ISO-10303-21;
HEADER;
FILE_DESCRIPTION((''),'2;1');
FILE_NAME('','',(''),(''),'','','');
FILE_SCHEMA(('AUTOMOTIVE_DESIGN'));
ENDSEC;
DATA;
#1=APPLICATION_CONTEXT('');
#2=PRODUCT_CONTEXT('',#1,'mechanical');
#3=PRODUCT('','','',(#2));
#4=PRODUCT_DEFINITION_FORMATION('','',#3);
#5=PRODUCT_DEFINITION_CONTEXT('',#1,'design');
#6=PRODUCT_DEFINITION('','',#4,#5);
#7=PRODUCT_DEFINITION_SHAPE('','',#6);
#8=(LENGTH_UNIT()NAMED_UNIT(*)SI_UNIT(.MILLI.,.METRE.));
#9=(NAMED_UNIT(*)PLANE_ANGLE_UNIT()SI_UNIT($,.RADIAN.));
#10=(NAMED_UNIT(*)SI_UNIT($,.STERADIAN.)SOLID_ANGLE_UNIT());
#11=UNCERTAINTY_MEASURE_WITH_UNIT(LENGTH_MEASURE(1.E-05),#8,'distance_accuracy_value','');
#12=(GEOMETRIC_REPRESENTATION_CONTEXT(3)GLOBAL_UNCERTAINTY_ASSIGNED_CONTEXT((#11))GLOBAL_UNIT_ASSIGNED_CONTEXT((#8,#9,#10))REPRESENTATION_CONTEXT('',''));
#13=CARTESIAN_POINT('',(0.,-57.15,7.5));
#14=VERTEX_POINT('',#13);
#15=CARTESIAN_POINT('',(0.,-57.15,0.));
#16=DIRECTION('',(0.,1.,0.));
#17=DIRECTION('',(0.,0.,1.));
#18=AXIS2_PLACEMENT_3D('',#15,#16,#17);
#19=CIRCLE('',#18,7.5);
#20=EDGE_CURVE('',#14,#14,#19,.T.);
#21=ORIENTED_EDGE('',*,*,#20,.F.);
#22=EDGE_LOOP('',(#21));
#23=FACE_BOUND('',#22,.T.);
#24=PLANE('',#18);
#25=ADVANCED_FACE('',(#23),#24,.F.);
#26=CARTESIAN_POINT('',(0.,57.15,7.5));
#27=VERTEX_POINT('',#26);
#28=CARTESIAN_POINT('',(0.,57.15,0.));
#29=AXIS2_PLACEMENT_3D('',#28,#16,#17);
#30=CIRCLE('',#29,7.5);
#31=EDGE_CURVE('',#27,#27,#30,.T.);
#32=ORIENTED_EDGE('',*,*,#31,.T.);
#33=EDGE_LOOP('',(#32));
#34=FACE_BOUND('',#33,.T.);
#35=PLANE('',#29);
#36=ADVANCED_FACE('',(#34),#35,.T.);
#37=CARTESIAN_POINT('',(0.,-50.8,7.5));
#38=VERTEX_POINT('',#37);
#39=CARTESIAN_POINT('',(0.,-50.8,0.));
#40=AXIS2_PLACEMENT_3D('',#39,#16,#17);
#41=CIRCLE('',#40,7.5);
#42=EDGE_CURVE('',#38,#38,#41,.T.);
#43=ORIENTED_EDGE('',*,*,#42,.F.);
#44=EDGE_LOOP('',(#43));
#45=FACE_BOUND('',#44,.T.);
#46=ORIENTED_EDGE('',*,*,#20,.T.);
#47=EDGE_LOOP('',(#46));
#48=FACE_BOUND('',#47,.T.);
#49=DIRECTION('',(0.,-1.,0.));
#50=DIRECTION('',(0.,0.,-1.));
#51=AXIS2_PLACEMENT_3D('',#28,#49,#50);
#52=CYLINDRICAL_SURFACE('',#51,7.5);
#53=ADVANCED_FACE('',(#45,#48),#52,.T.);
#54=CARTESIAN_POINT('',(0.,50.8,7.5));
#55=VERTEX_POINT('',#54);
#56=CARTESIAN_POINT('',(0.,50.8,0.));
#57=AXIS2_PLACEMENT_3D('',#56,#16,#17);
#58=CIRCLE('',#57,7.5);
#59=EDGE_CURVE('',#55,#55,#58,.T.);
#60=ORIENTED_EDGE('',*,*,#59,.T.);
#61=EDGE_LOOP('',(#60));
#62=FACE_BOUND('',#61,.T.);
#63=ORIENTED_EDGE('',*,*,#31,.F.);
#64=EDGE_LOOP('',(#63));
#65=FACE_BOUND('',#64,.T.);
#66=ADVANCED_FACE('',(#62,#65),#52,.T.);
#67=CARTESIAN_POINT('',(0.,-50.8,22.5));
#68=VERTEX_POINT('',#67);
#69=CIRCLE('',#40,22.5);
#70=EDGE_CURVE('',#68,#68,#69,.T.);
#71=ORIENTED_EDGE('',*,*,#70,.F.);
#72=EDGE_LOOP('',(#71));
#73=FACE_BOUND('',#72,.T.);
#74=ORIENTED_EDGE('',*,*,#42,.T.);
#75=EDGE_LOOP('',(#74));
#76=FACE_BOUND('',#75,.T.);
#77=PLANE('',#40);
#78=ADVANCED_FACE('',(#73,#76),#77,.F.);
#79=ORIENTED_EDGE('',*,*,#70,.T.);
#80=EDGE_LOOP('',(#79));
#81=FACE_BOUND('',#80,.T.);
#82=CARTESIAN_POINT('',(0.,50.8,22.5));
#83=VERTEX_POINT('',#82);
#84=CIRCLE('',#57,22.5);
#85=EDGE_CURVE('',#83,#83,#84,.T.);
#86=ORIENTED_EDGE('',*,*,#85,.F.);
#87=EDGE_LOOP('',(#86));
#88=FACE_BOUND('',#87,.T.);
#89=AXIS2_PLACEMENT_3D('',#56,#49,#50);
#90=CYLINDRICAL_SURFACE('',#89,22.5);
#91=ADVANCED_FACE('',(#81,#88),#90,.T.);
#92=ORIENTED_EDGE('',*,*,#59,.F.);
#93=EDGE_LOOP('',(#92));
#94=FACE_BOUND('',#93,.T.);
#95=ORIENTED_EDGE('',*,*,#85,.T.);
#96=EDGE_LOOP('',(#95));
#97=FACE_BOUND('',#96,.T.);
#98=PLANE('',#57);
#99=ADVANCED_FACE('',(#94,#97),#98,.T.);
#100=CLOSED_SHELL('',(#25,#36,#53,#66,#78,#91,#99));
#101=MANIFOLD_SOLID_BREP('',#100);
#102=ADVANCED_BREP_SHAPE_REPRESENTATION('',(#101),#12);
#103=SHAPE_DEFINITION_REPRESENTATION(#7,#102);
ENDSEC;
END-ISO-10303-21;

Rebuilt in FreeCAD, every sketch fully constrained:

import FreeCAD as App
import Part
import Sketcher
from FreeCAD import Vector

doc = App.newDocument("Part")
body = doc.addObject("PartDesign::Body", "Body")

sketch1 = body.newObject("Sketcher::SketchObject", "Sketch")
sketch1.AttachmentSupport = (doc.getObject("XZ_Plane"), [""])
sketch1.MapMode = "FlatFace"
sketch1.addGeometry(Part.Circle(Vector(0, 0, 0), Vector(0, 0, 1), 8), False)
sketch1.addConstraint([
    Sketcher.Constraint("Coincident", 0, 3, -1, 1),
    Sketcher.Constraint("Diameter", 0, 15.0),
])
pad1 = body.newObject("PartDesign::Pad", "Pad")
pad1.Profile = sketch1
pad1.Length = 114.3
pad1.Midplane = True

sketch2 = body.newObject("Sketcher::SketchObject", "Sketch001")
sketch2.AttachmentSupport = (doc.getObject("XZ_Plane"), [""])
sketch2.MapMode = "FlatFace"
sketch2.addGeometry(Part.Circle(Vector(0, 0, 0), Vector(0, 0, 1), 22), False)
sketch2.addConstraint([
    Sketcher.Constraint("Coincident", 0, 3, -1, 1),
    Sketcher.Constraint("Diameter", 0, 45.0),
])
pad2 = body.newObject("PartDesign::Pad", "Pad001")
pad2.Profile = sketch2
pad2.Length = 101.6
pad2.Midplane = True

doc.recompute()
